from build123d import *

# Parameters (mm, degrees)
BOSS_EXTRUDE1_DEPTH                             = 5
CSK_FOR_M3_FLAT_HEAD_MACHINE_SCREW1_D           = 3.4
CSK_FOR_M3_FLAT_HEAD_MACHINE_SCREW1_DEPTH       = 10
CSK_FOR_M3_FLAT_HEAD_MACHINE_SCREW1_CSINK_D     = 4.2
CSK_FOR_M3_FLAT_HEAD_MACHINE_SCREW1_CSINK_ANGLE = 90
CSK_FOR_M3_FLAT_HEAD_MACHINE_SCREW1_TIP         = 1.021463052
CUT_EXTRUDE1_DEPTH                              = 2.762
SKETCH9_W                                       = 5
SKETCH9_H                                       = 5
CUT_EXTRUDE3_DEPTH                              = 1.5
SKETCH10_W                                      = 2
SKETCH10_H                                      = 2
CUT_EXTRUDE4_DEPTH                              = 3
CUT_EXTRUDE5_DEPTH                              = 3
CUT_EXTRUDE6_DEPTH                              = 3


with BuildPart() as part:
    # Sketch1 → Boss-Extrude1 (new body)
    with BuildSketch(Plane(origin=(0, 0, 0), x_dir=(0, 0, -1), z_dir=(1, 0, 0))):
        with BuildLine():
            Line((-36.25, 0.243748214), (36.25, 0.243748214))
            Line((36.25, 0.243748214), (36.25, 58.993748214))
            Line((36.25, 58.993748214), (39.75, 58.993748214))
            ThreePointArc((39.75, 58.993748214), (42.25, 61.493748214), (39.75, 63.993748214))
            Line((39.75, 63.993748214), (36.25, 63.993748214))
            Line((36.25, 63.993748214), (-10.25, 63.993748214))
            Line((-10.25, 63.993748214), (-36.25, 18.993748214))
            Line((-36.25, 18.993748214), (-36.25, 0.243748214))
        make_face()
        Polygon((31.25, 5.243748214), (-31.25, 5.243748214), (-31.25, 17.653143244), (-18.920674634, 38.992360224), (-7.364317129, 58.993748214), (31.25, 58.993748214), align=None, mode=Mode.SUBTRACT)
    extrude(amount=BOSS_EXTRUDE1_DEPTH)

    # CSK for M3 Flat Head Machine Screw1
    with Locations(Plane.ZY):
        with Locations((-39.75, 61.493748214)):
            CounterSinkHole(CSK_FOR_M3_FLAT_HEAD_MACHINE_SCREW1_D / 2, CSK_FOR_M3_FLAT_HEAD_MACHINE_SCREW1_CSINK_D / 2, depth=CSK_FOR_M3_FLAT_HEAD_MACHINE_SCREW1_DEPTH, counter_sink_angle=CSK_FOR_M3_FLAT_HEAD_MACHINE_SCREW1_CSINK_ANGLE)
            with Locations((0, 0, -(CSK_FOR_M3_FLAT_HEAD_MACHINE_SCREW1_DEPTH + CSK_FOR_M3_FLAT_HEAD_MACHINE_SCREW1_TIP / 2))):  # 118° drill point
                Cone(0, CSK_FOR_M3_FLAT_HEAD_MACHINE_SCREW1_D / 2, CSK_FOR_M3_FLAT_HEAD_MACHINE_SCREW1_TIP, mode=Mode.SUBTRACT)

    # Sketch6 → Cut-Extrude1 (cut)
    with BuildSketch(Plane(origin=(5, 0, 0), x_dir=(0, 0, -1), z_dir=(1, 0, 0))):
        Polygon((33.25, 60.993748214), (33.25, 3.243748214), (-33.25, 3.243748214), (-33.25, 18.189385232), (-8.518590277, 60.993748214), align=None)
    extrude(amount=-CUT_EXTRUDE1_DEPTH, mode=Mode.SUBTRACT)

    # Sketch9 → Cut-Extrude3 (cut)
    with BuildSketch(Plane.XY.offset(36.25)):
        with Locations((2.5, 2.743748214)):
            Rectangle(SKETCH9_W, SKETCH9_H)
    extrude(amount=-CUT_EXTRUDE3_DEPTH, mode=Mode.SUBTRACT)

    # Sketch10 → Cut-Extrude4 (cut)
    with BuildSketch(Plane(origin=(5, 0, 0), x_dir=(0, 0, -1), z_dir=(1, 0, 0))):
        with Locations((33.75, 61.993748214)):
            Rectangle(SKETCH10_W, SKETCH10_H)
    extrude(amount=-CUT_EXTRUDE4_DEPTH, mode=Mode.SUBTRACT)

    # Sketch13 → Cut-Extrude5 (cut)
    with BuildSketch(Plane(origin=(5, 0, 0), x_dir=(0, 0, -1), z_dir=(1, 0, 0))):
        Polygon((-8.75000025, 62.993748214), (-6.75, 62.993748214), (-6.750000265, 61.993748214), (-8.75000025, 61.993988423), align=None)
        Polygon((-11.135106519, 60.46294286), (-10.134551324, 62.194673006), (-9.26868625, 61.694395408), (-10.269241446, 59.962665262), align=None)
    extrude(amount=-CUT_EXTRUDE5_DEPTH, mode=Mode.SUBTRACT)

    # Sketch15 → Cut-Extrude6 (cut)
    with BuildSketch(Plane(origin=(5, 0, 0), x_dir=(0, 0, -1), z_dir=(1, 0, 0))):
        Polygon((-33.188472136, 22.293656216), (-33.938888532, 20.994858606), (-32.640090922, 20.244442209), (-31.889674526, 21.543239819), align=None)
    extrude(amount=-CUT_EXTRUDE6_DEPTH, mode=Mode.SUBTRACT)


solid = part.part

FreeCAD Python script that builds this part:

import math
import FreeCAD as App
import Part
import Sketcher

V = App.Vector

doc = App.newDocument("Part")
body = doc.addObject("PartDesign::Body", "Body")

sketch1 = body.newObject("Sketcher::SketchObject", "Sketch")
sketch1.AttachmentSupport = (doc.getObject("YZ_Plane"), [""])
sketch1.MapMode = "FlatFace"
sketch1.addGeometry([
    Part.LineSegment(V(0.2, 36.2, 0), V(0.2, -36.2, 0)),
    Part.LineSegment(V(0.2, -36.2, 0), V(59, -36.2, 0)),
    Part.LineSegment(V(59, -36.2, 0), V(59, -39.8, 0)),
    Part.ArcOfCircle(Part.Circle(V(61.5, -39.8, 0), V(0, 0, 1), 2.5), math.radians(180), math.radians(360)),
    Part.LineSegment(V(64, -39.8, 0), V(64, 10.2, 0)),
    Part.LineSegment(V(64, 10.2, 0), V(19, 36.2, 0)),
    Part.LineSegment(V(19, 36.2, 0), V(0.2, 36.2, 0)),
    Part.LineSegment(V(59, -31.2, 0), V(5.2, -31.2, 0)),
    Part.LineSegment(V(5.2, -31.2, 0), V(5.2, 31.2, 0)),
    Part.LineSegment(V(5.2, 31.2, 0), V(17.7, 31.2, 0)),
    Part.LineSegment(V(17.7, 31.2, 0), V(39, 18.9, 0)),
    Part.LineSegment(V(39, 18.9, 0), V(59, 7.4, 0)),
    Part.LineSegment(V(59, 7.4, 0), V(59, -31.2, 0)),
], False)
sketch1.addConstraint([
    Sketcher.Constraint("Coincident", 0, 2, 1, 1),
    Sketcher.Constraint("Coincident", 1, 2, 2, 1),
    Sketcher.Constraint("Tangent", 2, 2, 3, 1),
    Sketcher.Constraint("Tangent", 3, 2, 4, 1),
    Sketcher.Constraint("Coincident", 4, 2, 5, 1),
    Sketcher.Constraint("Coincident", 5, 2, 6, 1),
    Sketcher.Constraint("Coincident", 6, 2, 0, 1),
    Sketcher.Constraint("Coincident", 7, 2, 8, 1),
    Sketcher.Constraint("Coincident", 8, 2, 9, 1),
    Sketcher.Constraint("Coincident", 9, 2, 10, 1),
    Sketcher.Constraint("Coincident", 10, 2, 11, 1),
    Sketcher.Constraint("Coincident", 11, 2, 12, 1),
    Sketcher.Constraint("Coincident", 12, 2, 7, 1),
    Sketcher.Constraint("Vertical", 0),
    Sketcher.Constraint("Horizontal", 1),
    Sketcher.Constraint("Vertical", 2),
    Sketcher.Constraint("Vertical", 4),
    Sketcher.Constraint("Horizontal", 6),
    Sketcher.Constraint("Horizontal", 7),
    Sketcher.Constraint("Vertical", 8),
    Sketcher.Constraint("Horizontal", 9),
    Sketcher.Constraint("Vertical", 12),
    Sketcher.Constraint("Parallel", 5, 10),
    Sketcher.Constraint("Parallel", 10, 11),
    Sketcher.Constraint("Vertical", 2, 2, 11, 2),
    Sketcher.Constraint("Radius", 3, 2.5),
    Sketcher.Constraint("DistanceY", 4, 1, 4, 2, 50.0),
    Sketcher.Constraint("DistanceY", 0, 2, 0, 1, 72.5),
    Sketcher.Constraint("DistanceY", 2, 2, 2, 1, 3.5),
    Sketcher.Constraint("DistanceY", 8, 1, 8, 2, 62.5),
    Sketcher.Constraint("DistanceX", 5, 2, 4, 2, 45.0),
    Sketcher.Constraint("DistanceX", 0, 2, 7, 2, 5.0),
    Sketcher.Constraint("DistanceY", 0, 2, 7, 2, 5.0),
    Sketcher.Constraint("DistanceX", 1, 1, 1, 2, 58.75),
    Sketcher.Constraint("DistanceY", 3, 3, -1, 1, 39.75),
    Sketcher.Constraint("Distance", 11, 23.09989),
    Sketcher.Constraint("DistanceX", 9, 1, 9, 2, 12.409395),
    Sketcher.Constraint("DistanceX", -1, 1, 3, 3, 61.493748),
])
pad1 = body.newObject("PartDesign::Pad", "Pad")
pad1.Profile = sketch1
pad1.Length = 5

sketch2 = body.newObject("Sketcher::SketchObject", "Sketch001")
sketch2.AttachmentSupport = (doc.getObject("YZ_Plane"), [""])
sketch2.MapMode = "FlatFace"
sketch2.addGeometry(Part.Circle(V(61.5, -39.8, 0), V(0, 0, 1), 1.7), False)
sketch2.addConstraint([
    Sketcher.Constraint("Diameter", 0, 3.4),
    Sketcher.Constraint("DistanceY", 0, 3, -1, 1, 39.75),
    Sketcher.Constraint("DistanceX", -1, 1, 0, 3, 61.493748),
])
doc.recompute()
hole = body.newObject("PartDesign::Hole", "Hole")
hole.Profile = sketch2
hole.ThreadType = "None"
hole.Diameter = 3.4
hole.DepthType = "Dimension"
hole.Depth = 10
hole.DrillPoint = "Angled"
hole.DrillPointAngle = 118
hole.HoleCutType = "Countersink"
hole.HoleCutDiameter = 4.2
hole.HoleCutCountersinkAngle = 90
hole.Reversed = True

sketch3 = body.newObject("Sketcher::SketchObject", "Sketch002")
sketch3.AttachmentSupport = (doc.getObject("YZ_Plane"), [""])
sketch3.MapMode = "FlatFace"
sketch3.AttachmentOffset = App.Placement(V(0, 0, 5), App.Rotation())
sketch3.addGeometry([
    Part.LineSegment(V(3, -33, 0), V(61, -33, 0)),
    Part.LineSegment(V(61, -33, 0), V(61, 9, 0)),
    Part.LineSegment(V(61, 9, 0), V(18, 33, 0)),
    Part.LineSegment(V(18, 33, 0), V(3, 33, 0)),
    Part.LineSegment(V(3, 33, 0), V(3, -33, 0)),
], False)
sketch3.addConstraint([
    Sketcher.Constraint("Coincident", 0, 2, 1, 1),
    Sketcher.Constraint("Coincident", 1, 2, 2, 1),
    Sketcher.Constraint("Coincident", 2, 2, 3, 1),
    Sketcher.Constraint("Coincident", 3, 2, 4, 1),
    Sketcher.Constraint("Coincident", 4, 2, 0, 1),
    Sketcher.Constraint("Horizontal", 0),
    Sketcher.Constraint("Vertical", 1),
    Sketcher.Constraint("Horizontal", 3),
    Sketcher.Constraint("Vertical", 4),
    Sketcher.Constraint("DistanceY", 4, 2, 4, 1, 66.5),
    Sketcher.Constraint("DistanceX", 0, 1, 0, 2, 57.75),
    Sketcher.Constraint("DistanceY", 0, 2, -1, 1, 33.25),
    Sketcher.Constraint("DistanceY", 1, 1, 1, 2, 41.76859),
    Sketcher.Constraint("DistanceX", 3, 2, 3, 1, 14.945637),
    Sketcher.Constraint("DistanceX", -1, 1, 0, 2, 60.993748),
])
pocket1 = body.newObject("PartDesign::Pocket", "Pocket")
pocket1.Profile = sketch3
pocket1.Length = 2.762

sketch4 = body.newObject("Sketcher::SketchObject", "Sketch003")
sketch4.AttachmentSupport = (doc.getObject("XY_Plane"), [""])
sketch4.MapMode = "FlatFace"
sketch4.AttachmentOffset = App.Placement(V(0, 0, 36.25), App.Rotation())
sketch4.addGeometry([
    Part.LineSegment(V(0, 5, 0), V(0, 0, 0)),
    Part.LineSegment(V(0, 0, 0), V(5, 0, 0)),
    Part.LineSegment(V(5, 0, 0), V(5, 5, 0)),
    Part.LineSegment(V(5, 5, 0), V(0, 5, 0)),
], False)
sketch4.addConstraint([
    Sketcher.Constraint("Coincident", 0, 2, 1, 1),
    Sketcher.Constraint("Coincident", 1, 2, 2, 1),
    Sketcher.Constraint("Coincident", 2, 2, 3, 1),
    Sketcher.Constraint("Coincident", 3, 2, 0, 1),
    Sketcher.Constraint("Vertical", 0),
    Sketcher.Constraint("Horizontal", 1),
    Sketcher.Constraint("Vertical", 2),
    Sketcher.Constraint("Horizontal", 3),
    Sketcher.Constraint("PointOnObject", 0, 2, -2),
    Sketcher.Constraint("Equal", 3, 0),
    Sketcher.Constraint("DistanceX", 1, 1, 1, 2, 5.0),
    Sketcher.Constraint("DistanceY", -1, 1, 0, 2, 0.243748),
])
pocket2 = body.newObject("PartDesign::Pocket", "Pocket001")
pocket2.Profile = sketch4
pocket2.Length = 1.5

sketch5 = body.newObject("Sketcher::SketchObject", "Sketch004")
sketch5.AttachmentSupport = (doc.getObject("YZ_Plane"), [""])
sketch5.MapMode = "FlatFace"
sketch5.AttachmentOffset = App.Placement(V(0, 0, 5), App.Rotation())
sketch5.addGeometry([
    Part.LineSegment(V(63, -32.8, 0), V(61, -32.8, 0)),
    Part.LineSegment(V(61, -32.8, 0), V(61, -34.8, 0)),
    Part.LineSegment(V(61, -34.8, 0), V(63, -34.8, 0)),
    Part.LineSegment(V(63, -34.8, 0), V(63, -32.8, 0)),
], False)
sketch5.addConstraint([
    Sketcher.Constraint("Coincident", 0, 2, 1, 1),
    Sketcher.Constraint("Coincident", 1, 2, 2, 1),
    Sketcher.Constraint("Coincident", 2, 2, 3, 1),
    Sketcher.Constraint("Coincident", 3, 2, 0, 1),
    Sketcher.Constraint("Horizontal", 0),
    Sketcher.Constraint("Vertical", 1),
    Sketcher.Constraint("Horizontal", 2),
    Sketcher.Constraint("Vertical", 3),
    Sketcher.Constraint("Equal", 2, 1),
    Sketcher.Constraint("DistanceX", 0, 2, 0, 1, 2.0),
    Sketcher.Constraint("DistanceY", 0, 2, -1, 1, 32.75),
    Sketcher.Constraint("DistanceX", -1, 1, 0, 2, 60.993748),
])
pocket3 = body.newObject("PartDesign::Pocket", "Pocket002")
pocket3.Profile = sketch5
pocket3.Length = 3

sketch6 = body.newObject("Sketcher::SketchObject", "Sketch005")
sketch6.AttachmentSupport = (doc.getObject("YZ_Plane"), [""])
sketch6.MapMode = "FlatFace"
sketch6.AttachmentOffset = App.Placement(V(0, 0, 5), App.Rotation())
sketch6.addGeometry([
    Part.LineSegment(V(63, 6.8, 0), V(63, 8.8, 0)),
    Part.LineSegment(V(63, 8.8, 0), V(62, 8.8, 0)),
    Part.LineSegment(V(62, 8.8, 0), V(62, 6.8, 0)),
    Part.LineSegment(V(62, 6.8, 0), V(63, 6.8, 0)),
    Part.LineSegment(V(62.2, 10.1, 0), V(60.5, 11.1, 0)),
    Part.LineSegment(V(60.5, 11.1, 0), V(60, 10.3, 0)),
    Part.LineSegment(V(60, 10.3, 0), V(61.7, 9.3, 0)),
    Part.LineSegment(V(61.7, 9.3, 0), V(62.2, 10.1, 0)),
], False)
sketch6.addConstraint([
    Sketcher.Constraint("Coincident", 0, 2, 1, 1),
    Sketcher.Constraint("Coincident", 1, 2, 2, 1),
    Sketcher.Constraint("Coincident", 2, 2, 3, 1),
    Sketcher.Constraint("Coincident", 3, 2, 0, 1),
    Sketcher.Constraint("Coincident", 4, 2, 5, 1),
    Sketcher.Constraint("Coincident", 5, 2, 6, 1),
    Sketcher.Constraint("Coincident", 6, 2, 7, 1),
    Sketcher.Constraint("Coincident", 7, 2, 4, 1),
    Sketcher.Constraint("Vertical", 0),
    Sketcher.Constraint("Horizontal", 1),
    Sketcher.Constraint("Horizontal", 3),
    Sketcher.Constraint("Perpendicular", 4, 5),
    Sketcher.Constraint("Perpendicular", 5, 6),
    Sketcher.Constraint("Perpendicular", 6, 7),
    Sketcher.Constraint("Equal", 2, 4),
    Sketcher.Constraint("DistanceX", 3, 1, 3, 2, 1.0),
    Sketcher.Constraint("DistanceY", 0, 1, 0, 2, 2.0),
    Sketcher.Constraint("Distance", 5, 1.0),
    Sketcher.Constraint("DistanceY", -1, 1, 0, 2, 8.75),
    Sketcher.Constraint("DistanceX", 1, 2, 1, 1, 0.99976),
    Sketcher.Constraint("DistanceX", -1, 1, 0, 2, 62.993748),
    Sketcher.Constraint("DistanceY", -1, 1, 5, 2, 10.269241),
    Sketcher.Constraint("DistanceY", -1, 1, 7, 2, 10.134551),
    Sketcher.Constraint("DistanceX", -1, 1, 4, 2, 60.462943),
])
pocket4 = body.newObject("PartDesign::Pocket", "Pocket003")
pocket4.Profile = sketch6
pocket4.Length = 3

sketch7 = body.newObject("Sketcher::SketchObject", "Sketch006")
sketch7.AttachmentSupport = (doc.getObject("YZ_Plane"), [""])
sketch7.MapMode = "FlatFace"
sketch7.AttachmentOffset = App.Placement(V(0, 0, 5), App.Rotation())
sketch7.addGeometry([
    Part.LineSegment(V(22.3, 33.2, 0), V(21, 33.9, 0)),
    Part.LineSegment(V(21, 33.9, 0), V(20.2, 32.6, 0)),
    Part.LineSegment(V(20.2, 32.6, 0), V(21.5, 31.9, 0)),
    Part.LineSegment(V(21.5, 31.9, 0), V(22.3, 33.2, 0)),
], False)
sketch7.addConstraint([
    Sketcher.Constraint("Coincident", 0, 2, 1, 1),
    Sketcher.Constraint("Coincident", 1, 2, 2, 1),
    Sketcher.Constraint("Coincident", 2, 2, 3, 1),
    Sketcher.Constraint("Coincident", 3, 2, 0, 1),
    Sketcher.Constraint("Perpendicular", 0, 1),
    Sketcher.Constraint("Perpendicular", 1, 2),
    Sketcher.Constraint("Perpendicular", 2, 3),
    Sketcher.Constraint("Equal", 0, 1),
    Sketcher.Constraint("Distance", 0, 1.5),
    Sketcher.Constraint("DistanceX", -1, 1, 0, 2, 20.994859),
    Sketcher.Constraint("DistanceY", -1, 1, 0, 2, 33.938889),
    Sketcher.Constraint("DistanceY", -1, 1, 1, 2, 32.640091),
])
pocket5 = body.newObject("PartDesign::Pocket", "Pocket004")
pocket5.Profile = sketch7
pocket5.Length = 3

doc.recompute()
